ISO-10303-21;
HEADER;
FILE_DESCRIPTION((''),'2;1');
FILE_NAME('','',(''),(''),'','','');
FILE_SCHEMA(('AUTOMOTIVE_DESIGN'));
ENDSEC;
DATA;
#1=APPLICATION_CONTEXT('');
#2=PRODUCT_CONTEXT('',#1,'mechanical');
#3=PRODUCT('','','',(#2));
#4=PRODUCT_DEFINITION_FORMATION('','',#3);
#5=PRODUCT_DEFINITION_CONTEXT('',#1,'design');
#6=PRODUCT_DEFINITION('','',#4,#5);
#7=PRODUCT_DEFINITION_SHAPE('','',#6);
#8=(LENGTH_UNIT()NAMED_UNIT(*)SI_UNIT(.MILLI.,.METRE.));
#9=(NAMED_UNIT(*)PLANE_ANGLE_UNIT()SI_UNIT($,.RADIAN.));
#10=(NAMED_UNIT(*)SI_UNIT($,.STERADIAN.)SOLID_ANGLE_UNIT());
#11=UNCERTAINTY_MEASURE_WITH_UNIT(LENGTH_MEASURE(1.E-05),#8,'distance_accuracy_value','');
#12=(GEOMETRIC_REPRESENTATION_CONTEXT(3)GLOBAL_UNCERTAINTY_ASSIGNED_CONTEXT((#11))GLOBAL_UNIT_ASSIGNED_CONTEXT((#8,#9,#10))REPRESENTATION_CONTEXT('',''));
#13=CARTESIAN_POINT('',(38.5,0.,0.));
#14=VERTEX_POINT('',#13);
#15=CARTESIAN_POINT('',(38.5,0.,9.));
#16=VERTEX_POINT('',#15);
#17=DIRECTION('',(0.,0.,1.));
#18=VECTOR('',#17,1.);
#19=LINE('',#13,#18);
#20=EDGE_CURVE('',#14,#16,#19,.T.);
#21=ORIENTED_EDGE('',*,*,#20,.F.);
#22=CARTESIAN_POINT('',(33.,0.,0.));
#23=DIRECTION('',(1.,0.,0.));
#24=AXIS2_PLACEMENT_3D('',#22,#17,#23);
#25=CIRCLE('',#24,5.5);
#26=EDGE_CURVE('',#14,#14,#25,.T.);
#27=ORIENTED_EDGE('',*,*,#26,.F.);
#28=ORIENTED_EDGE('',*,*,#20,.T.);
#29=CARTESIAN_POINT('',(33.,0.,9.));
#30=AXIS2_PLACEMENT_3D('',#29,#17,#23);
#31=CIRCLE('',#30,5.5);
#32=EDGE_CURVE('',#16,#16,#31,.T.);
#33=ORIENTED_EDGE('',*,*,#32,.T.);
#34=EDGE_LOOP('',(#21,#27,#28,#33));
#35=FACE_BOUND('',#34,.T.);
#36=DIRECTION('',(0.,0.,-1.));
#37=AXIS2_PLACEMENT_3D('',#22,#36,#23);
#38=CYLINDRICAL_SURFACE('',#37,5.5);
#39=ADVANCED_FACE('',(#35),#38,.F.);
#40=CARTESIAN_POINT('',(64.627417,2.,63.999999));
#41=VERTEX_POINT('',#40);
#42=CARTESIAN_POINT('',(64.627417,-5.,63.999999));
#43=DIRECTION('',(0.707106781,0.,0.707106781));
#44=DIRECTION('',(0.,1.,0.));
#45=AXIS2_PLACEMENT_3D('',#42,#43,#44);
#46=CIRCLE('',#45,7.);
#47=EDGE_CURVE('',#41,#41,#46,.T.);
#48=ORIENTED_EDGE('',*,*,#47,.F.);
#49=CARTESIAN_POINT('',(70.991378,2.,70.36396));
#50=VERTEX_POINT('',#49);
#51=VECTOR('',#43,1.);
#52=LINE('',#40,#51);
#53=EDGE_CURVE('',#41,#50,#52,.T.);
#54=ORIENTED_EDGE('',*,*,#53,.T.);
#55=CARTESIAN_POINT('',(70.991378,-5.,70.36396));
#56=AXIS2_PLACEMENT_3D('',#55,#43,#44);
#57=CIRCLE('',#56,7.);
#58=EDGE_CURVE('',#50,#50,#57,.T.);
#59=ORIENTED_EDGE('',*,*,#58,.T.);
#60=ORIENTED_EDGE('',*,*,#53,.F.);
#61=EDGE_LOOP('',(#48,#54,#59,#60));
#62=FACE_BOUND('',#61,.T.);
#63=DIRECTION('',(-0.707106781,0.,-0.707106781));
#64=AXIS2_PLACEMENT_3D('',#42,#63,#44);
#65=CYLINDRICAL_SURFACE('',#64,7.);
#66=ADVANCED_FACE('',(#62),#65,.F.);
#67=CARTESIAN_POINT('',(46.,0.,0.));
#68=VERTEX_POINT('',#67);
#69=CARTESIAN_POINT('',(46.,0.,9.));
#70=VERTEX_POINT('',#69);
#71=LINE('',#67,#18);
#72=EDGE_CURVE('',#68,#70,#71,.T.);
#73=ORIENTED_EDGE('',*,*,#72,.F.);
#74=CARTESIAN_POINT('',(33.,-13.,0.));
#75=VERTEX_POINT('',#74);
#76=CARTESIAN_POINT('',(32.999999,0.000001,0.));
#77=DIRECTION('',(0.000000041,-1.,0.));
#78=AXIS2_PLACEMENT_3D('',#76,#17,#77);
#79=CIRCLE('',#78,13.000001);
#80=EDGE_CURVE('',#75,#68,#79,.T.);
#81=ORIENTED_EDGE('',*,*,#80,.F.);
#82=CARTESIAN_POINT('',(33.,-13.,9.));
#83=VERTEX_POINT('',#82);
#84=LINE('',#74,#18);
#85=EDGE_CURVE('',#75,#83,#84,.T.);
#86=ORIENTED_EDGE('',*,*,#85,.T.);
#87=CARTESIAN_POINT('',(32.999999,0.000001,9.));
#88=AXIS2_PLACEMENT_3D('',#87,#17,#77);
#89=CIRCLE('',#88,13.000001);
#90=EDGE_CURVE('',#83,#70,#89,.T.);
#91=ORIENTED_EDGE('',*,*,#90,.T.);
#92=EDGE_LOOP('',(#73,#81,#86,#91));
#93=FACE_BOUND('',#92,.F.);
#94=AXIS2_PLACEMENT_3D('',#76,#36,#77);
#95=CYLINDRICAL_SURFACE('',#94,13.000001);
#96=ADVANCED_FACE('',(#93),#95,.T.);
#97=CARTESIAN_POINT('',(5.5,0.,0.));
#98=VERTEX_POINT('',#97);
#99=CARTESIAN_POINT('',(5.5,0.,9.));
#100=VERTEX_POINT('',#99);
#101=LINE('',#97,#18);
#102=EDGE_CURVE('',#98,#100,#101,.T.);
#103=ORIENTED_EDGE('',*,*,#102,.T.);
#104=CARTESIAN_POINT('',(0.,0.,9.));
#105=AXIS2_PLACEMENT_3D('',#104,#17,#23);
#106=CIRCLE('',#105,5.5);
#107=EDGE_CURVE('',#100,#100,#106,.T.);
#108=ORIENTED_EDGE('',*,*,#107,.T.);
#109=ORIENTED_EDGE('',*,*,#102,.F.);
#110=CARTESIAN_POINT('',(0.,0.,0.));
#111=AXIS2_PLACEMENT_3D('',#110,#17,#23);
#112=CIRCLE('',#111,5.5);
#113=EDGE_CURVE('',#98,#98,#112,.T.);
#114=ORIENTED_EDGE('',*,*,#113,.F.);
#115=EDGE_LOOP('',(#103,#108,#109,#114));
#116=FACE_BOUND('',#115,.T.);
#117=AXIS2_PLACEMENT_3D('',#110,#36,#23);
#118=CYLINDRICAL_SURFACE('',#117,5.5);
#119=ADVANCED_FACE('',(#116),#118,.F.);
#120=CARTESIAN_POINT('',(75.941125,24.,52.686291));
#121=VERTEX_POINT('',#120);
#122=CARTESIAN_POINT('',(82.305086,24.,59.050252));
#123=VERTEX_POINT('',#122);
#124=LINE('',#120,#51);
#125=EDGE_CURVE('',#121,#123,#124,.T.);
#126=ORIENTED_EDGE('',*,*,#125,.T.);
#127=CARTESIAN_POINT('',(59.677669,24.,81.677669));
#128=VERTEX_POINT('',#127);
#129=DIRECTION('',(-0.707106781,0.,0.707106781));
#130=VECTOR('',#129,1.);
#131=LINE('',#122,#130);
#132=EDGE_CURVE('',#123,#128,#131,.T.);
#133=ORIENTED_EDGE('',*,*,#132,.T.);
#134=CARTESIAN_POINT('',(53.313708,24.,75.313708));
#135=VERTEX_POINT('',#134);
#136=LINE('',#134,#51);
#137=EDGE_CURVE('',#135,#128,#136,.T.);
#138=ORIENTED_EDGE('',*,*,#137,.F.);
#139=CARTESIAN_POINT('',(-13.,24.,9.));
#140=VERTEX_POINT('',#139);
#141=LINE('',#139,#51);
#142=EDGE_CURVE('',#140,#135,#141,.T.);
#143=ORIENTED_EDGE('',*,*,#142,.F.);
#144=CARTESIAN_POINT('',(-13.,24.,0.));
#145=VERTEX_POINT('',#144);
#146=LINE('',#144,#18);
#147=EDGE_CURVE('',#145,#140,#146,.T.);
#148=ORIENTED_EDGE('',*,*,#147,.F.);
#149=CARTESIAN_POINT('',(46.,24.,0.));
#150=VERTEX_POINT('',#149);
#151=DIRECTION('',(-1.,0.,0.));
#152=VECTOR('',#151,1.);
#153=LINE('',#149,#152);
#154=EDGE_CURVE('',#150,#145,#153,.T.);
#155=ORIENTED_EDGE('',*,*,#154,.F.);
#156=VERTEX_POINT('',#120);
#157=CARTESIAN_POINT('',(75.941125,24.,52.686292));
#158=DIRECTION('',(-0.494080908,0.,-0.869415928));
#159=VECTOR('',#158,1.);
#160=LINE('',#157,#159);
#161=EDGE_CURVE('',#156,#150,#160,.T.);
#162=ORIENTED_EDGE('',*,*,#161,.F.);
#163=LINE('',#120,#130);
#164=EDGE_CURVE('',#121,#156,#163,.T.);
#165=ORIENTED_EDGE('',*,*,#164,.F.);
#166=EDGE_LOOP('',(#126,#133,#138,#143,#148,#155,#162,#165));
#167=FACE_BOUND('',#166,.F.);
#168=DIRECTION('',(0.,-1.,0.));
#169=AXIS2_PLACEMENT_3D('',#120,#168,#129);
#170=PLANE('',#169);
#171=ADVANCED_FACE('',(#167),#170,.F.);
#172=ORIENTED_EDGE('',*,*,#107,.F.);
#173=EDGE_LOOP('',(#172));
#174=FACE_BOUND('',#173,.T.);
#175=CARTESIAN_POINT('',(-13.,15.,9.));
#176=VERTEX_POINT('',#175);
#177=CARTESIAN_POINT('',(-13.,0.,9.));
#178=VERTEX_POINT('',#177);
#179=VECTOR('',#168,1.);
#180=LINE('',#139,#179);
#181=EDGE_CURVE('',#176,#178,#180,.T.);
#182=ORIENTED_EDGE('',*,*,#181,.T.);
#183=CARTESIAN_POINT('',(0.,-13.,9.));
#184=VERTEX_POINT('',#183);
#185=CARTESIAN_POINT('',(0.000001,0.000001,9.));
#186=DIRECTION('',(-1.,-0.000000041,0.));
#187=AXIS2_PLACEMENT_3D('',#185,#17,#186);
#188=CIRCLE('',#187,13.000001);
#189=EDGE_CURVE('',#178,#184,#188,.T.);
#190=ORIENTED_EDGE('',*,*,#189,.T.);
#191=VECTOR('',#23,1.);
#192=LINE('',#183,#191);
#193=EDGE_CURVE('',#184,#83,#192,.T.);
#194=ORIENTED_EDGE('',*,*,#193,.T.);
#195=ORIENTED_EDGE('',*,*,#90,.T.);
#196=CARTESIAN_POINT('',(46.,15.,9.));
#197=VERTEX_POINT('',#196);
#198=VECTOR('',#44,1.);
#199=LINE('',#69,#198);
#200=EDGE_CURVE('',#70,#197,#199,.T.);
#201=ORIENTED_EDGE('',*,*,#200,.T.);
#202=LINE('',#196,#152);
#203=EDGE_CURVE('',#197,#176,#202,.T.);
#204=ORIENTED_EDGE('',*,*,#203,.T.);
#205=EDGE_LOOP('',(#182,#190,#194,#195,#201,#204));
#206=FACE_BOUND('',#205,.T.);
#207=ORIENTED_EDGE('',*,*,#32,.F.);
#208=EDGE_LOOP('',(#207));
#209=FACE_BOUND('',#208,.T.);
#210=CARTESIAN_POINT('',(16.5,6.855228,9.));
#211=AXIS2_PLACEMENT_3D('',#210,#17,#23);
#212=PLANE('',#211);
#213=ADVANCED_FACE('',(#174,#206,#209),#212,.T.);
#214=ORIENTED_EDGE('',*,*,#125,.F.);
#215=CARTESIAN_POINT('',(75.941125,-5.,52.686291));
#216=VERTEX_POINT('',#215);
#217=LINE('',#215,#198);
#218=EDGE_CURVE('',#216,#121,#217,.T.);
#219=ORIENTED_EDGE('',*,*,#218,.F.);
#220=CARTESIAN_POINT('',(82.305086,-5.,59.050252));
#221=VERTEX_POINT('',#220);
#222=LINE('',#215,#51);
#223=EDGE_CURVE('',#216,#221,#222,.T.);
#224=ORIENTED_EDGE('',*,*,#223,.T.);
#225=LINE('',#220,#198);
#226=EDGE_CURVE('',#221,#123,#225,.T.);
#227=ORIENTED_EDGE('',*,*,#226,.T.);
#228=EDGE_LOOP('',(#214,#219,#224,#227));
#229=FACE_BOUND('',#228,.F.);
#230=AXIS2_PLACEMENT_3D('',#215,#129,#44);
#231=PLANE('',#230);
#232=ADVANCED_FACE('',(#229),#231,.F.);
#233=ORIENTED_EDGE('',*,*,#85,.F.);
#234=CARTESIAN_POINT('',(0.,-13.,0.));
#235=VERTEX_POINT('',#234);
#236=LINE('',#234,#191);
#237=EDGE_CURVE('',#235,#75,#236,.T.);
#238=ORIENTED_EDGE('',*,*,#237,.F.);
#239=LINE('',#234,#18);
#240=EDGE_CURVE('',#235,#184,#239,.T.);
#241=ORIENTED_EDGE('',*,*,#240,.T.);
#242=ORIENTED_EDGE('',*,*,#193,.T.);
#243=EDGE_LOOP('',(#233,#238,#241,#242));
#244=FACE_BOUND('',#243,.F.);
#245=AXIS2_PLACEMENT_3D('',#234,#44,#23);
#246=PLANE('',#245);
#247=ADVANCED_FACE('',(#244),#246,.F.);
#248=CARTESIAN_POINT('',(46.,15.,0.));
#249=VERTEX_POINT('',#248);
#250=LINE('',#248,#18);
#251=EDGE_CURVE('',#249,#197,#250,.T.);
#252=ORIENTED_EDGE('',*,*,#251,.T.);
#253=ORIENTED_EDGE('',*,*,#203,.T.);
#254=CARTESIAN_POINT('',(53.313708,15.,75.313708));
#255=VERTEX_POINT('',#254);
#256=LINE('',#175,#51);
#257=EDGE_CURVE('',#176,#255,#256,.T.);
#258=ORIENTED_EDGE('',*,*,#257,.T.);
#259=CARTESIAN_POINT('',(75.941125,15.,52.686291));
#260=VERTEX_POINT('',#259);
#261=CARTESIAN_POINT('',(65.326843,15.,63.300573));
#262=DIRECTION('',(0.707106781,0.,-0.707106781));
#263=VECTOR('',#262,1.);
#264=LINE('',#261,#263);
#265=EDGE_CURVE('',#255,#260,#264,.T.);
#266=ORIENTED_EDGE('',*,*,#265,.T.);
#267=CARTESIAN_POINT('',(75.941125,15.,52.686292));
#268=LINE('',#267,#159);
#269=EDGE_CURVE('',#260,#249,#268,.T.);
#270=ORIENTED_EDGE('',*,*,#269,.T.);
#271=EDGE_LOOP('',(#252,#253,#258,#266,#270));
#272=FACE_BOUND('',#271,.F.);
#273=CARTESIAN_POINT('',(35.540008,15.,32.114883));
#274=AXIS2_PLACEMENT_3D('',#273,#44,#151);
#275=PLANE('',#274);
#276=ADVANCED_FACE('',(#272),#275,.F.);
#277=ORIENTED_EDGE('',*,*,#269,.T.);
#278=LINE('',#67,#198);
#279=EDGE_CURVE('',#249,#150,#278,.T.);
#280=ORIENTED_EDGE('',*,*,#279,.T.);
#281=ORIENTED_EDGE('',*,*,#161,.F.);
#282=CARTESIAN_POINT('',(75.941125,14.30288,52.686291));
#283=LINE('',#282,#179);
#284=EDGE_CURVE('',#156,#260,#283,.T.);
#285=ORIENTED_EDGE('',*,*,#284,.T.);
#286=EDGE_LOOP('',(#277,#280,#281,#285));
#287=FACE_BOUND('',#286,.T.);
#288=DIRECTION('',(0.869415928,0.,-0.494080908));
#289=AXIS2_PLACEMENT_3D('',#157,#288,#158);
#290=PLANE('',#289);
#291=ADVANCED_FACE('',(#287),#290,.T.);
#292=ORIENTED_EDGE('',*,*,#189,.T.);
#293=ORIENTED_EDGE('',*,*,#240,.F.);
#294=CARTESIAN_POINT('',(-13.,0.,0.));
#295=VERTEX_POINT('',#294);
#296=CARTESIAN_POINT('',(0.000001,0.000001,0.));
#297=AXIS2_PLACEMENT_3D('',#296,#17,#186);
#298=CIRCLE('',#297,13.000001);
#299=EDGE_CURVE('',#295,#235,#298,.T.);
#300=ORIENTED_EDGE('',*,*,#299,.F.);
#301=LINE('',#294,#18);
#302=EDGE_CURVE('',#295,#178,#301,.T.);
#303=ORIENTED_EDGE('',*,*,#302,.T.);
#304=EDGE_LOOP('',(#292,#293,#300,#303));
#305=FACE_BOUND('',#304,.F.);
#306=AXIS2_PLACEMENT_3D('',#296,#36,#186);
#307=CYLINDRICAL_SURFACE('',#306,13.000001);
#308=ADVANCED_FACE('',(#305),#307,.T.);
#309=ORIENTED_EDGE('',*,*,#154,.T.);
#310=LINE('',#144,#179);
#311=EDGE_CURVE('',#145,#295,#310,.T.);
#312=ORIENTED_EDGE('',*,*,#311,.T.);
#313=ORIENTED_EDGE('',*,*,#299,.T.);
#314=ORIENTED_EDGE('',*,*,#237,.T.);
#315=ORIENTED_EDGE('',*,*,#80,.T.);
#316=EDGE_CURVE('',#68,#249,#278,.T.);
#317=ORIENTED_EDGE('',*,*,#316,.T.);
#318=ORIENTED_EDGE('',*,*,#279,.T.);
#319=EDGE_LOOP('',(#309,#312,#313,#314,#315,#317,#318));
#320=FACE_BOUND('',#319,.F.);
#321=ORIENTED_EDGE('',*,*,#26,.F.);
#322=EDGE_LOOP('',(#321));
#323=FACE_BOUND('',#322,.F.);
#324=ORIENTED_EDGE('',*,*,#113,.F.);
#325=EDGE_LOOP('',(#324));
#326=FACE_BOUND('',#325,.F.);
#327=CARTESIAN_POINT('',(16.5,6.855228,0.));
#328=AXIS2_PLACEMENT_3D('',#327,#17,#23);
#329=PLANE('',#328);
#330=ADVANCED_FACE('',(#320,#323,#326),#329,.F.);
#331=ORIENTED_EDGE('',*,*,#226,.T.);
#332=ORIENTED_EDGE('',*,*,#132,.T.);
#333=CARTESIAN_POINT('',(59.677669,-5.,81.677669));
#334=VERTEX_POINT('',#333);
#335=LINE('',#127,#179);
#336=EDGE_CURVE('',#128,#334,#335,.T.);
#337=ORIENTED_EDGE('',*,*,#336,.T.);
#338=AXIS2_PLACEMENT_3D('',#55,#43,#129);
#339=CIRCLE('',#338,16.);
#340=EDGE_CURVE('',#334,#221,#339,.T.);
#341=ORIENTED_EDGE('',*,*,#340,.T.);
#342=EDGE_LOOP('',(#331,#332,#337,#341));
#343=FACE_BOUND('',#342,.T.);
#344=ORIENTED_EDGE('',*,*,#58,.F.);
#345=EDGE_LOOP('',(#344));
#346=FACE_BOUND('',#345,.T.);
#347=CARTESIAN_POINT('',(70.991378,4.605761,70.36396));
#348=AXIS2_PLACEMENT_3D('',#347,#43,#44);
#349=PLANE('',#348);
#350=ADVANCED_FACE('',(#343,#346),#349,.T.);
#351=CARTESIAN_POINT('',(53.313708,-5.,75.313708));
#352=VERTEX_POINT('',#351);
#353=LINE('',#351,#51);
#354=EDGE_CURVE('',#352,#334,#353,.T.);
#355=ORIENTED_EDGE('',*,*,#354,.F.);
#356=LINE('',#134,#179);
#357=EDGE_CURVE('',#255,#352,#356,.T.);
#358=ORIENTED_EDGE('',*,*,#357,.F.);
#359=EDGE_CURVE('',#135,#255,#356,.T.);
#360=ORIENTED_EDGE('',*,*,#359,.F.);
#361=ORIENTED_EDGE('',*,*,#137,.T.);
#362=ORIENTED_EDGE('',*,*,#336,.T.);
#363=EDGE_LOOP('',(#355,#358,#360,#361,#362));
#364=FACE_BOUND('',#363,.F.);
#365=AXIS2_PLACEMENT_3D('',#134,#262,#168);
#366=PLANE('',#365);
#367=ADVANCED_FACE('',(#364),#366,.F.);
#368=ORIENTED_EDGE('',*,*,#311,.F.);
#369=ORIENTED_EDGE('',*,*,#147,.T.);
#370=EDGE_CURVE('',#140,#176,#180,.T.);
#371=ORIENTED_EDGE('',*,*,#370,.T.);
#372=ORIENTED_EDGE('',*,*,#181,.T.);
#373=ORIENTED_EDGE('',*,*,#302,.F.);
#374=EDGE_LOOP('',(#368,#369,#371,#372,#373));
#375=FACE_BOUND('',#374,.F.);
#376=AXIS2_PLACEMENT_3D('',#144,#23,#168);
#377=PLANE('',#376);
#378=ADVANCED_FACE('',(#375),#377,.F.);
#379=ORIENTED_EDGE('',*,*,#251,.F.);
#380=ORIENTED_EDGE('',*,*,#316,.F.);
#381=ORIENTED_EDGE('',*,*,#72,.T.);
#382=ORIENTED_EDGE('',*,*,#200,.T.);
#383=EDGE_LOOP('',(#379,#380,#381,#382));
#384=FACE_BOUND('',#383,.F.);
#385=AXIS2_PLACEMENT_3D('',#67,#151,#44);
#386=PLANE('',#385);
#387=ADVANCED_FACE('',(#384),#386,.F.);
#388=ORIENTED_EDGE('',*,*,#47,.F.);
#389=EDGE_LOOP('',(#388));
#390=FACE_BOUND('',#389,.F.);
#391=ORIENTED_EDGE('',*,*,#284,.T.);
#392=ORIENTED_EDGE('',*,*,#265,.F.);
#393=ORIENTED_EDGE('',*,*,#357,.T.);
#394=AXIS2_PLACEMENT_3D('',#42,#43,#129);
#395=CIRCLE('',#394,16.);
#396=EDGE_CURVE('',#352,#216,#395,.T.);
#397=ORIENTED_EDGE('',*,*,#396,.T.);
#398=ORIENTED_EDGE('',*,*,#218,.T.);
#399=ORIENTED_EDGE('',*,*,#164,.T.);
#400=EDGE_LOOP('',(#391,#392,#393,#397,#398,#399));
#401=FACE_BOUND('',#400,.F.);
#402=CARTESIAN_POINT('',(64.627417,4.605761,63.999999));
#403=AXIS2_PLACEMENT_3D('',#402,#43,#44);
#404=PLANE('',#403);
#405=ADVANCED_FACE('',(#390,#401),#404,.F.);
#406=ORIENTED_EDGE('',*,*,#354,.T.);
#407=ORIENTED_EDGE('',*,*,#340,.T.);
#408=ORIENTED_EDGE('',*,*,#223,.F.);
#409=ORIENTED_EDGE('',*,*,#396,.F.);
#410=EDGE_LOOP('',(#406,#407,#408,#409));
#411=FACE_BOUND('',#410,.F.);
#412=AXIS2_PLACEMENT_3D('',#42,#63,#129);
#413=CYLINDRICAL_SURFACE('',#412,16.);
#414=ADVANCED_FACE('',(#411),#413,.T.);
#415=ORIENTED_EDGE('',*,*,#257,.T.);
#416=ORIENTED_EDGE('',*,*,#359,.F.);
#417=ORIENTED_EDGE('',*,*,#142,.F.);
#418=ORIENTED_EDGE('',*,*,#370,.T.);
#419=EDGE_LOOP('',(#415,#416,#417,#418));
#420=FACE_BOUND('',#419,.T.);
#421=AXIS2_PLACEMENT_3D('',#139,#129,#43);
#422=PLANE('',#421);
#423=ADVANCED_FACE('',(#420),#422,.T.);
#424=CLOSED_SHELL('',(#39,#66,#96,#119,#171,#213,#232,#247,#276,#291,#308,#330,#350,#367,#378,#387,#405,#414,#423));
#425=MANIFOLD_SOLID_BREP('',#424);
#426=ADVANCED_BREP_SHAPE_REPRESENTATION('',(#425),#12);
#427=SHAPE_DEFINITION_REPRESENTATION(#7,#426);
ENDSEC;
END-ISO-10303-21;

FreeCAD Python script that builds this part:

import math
import FreeCAD as App
import Part
import Sketcher

V = App.Vector
Q = App.Units.Quantity


def add_polygon(sketch, points):
    """Adds a closed chain of lines whose ends are joined by coincident constraints."""
    first, n = sketch.GeometryCount, len(points)
    for a, b in zip(points, points[1:] + points[:1]):
        sketch.addGeometry(Part.LineSegment(App.Vector(*a, 0), App.Vector(*b, 0)), False)
    for i in range(n):
        sketch.addConstraint(Sketcher.Constraint("Coincident", first + i, 2, first + (i + 1) % n, 1))

doc = App.newDocument("Part")
body = doc.addObject("PartDesign::Body", "Body")

sketch1 = doc.addObject("Sketcher::SketchObject", "Sketch")
body.addObject(sketch1)
sketch1.AttachmentSupport = (doc.XY_Plane, [""])
sketch1.MapMode = "FlatFace"
sketch1.addGeometry(Part.LineSegment(V(46, 24, 0), V(-13, 24, 0)), False)
sketch1.addGeometry(Part.LineSegment(V(-13, 24, 0), V(-13, 0, 0)), False)
sketch1.addGeometry(Part.ArcOfCircle(Part.Circle(V(0.000001, 0.000001, 0), V(0, 0, 1), 13.000001), math.radians(-179.999998), math.radians(-90.000002)), False)
sketch1.addGeometry(Part.LineSegment(V(0, -13, 0), V(33, -13, 0)), False)
sketch1.addGeometry(Part.ArcOfCircle(Part.Circle(V(32.999999, 0.000001, 0), V(0, 0, 1), 13.000001), math.radians(-89.999998), math.radians(-0.000002)), False)
sketch1.addGeometry(Part.LineSegment(V(46, 0, 0), V(46, 24, 0)), False)
sketch1.addGeometry(Part.Circle(V(0, 0, 0), V(0, 0, 1), 5.5), False)
sketch1.addGeometry(Part.Circle(V(33, 0, 0), V(0, 0, 1), 5.5), False)
sketch1.addConstraint(Sketcher.Constraint("Coincident", 0, 2, 1, 1))
sketch1.addConstraint(Sketcher.Constraint("Tangent", 1, 2, 2, 1))
sketch1.addConstraint(Sketcher.Constraint("Tangent", 2, 2, 3, 1))
sketch1.addConstraint(Sketcher.Constraint("Tangent", 3, 2, 4, 1))
sketch1.addConstraint(Sketcher.Constraint("Tangent", 4, 2, 5, 1))
sketch1.addConstraint(Sketcher.Constraint("Coincident", 5, 2, 0, 1))
sketch1.addConstraint(Sketcher.Constraint("Horizontal", 0))
sketch1.addConstraint(Sketcher.Constraint("Vertical", 1))
sketch1.addConstraint(Sketcher.Constraint("Horizontal", 3))
sketch1.addConstraint(Sketcher.Constraint("Vertical", 5))
sketch1.addConstraint(Sketcher.Constraint("Coincident", 2, 3, -1, 1))
sketch1.addConstraint(Sketcher.Constraint("Coincident", 6, 3, -1, 1))
sketch1.addConstraint(Sketcher.Constraint("Coincident", 7, 3, 4, 3))
sketch1.addConstraint(Sketcher.Constraint("Equal", 2, 4))
sketch1.addConstraint(Sketcher.Constraint("Equal", 6, 7))
sketch1.addConstraint(Sketcher.Constraint("Diameter", 6, Q("11 mm")))
sketch1.addConstraint(Sketcher.Constraint("Radius", 2, Q("13.000001 mm")))
sketch1.addConstraint(Sketcher.Constraint("DistanceX", 0, 2, 0, 1, Q("59 mm")))
sketch1.addConstraint(Sketcher.Constraint("DistanceY", 1, 2, 1, 1, Q("24 mm")))
pad1 = doc.addObject("PartDesign::Pad", "Pad")
body.addObject(pad1)
pad1.Profile = sketch1
pad1.Length = 9

sketch2 = doc.addObject("Sketcher::SketchObject", "Sketch001")
body.addObject(sketch2)
sketch2.AttachmentSupport = (doc.XZ_Plane, [""])
sketch2.MapMode = "FlatFace"
sketch2.AttachmentOffset = App.Placement(V(0, 0, -24), App.Rotation())
add_polygon(sketch2, [(46, 9), (-13, 9), (53.313708, 75.313708), (75.941125, 52.686292), (46, 0)])
sketch2.addConstraint(Sketcher.Constraint("Horizontal", 0))
sketch2.addConstraint(Sketcher.Constraint("Vertical", 4))
sketch2.addConstraint(Sketcher.Constraint("PointOnObject", 3, 2, -1))
sketch2.addConstraint(Sketcher.Constraint("Perpendicular", 1, 2))
sketch2.addConstraint(Sketcher.Constraint("DistanceX", 0, 2, 0, 1, Q("59 mm")))
sketch2.addConstraint(Sketcher.Constraint("DistanceY", 4, 1, 4, 2, Q("9 mm")))
sketch2.addConstraint(Sketcher.Constraint("Angle", 1, Q("45 deg")))
sketch2.addConstraint(Sketcher.Constraint("Distance", 2, Q("31.999999 mm")))
sketch2.addConstraint(Sketcher.Constraint("DistanceX", 0, 2, -1, 1, Q("13 mm")))
sketch2.addConstraint(Sketcher.Constraint("Distance", 3, Q("60.59964 mm")))
pad2 = doc.addObject("PartDesign::Pad", "Pad001")
body.addObject(pad2)
pad2.Profile = sketch2
pad2.Length = 9

sketch3 = doc.addObject("Sketcher::SketchObject", "Sketch002")
body.addObject(sketch3)
sketch3.Placement = App.Placement(V(64.313708, 0, 64.313708), App.Rotation(V(0, 1, 0), V(-0.707106781, 0, 0.707106781), V(0.707106781, 0, 0.707106781), "ZXY"))
sketch3.addGeometry(Part.LineSegment(V(24, -16.443651, 0), V(24, 15.556349, 0)), False)
sketch3.addGeometry(Part.LineSegment(V(24, 15.556349, 0), V(-5, 15.556349, 0)), False)
sketch3.addGeometry(Part.ArcOfCircle(Part.Circle(V(-5, -0.443651, 0), V(0, 0, 1), 16), math.radians(90), math.radians(270)), False)
sketch3.addGeometry(Part.LineSegment(V(-5, -16.443651, 0), V(24, -16.443651, 0)), False)
sketch3.addGeometry(Part.Circle(V(-5, -0.443651, 0), V(0, 0, 1), 7), False)
sketch3.addConstraint(Sketcher.Constraint("Coincident", 0, 2, 1, 1))
sketch3.addConstraint(Sketcher.Constraint("Tangent", 1, 2, 2, 1))
sketch3.addConstraint(Sketcher.Constraint("Tangent", 2, 2, 3, 1))
sketch3.addConstraint(Sketcher.Constraint("Coincident", 3, 2, 0, 1))
sketch3.addConstraint(Sketcher.Constraint("Vertical", 0))
sketch3.addConstraint(Sketcher.Constraint("Horizontal", 1))
sketch3.addConstraint(Sketcher.Constraint("Horizontal", 3))
sketch3.addConstraint(Sketcher.Constraint("Coincident", 4, 3, 2, 3))
sketch3.addConstraint(Sketcher.Constraint("Diameter", 4, Q("14 mm")))
sketch3.addConstraint(Sketcher.Constraint("Radius", 2, Q("16 mm")))
sketch3.addConstraint(Sketcher.Constraint("DistanceX", 1, 2, 1, 1, Q("29 mm")))
sketch3.addConstraint(Sketcher.Constraint("DistanceX", 2, 3, -1, 1, Q("5 mm")))
sketch3.addConstraint(Sketcher.Constraint("DistanceY", 2, 3, -1, 1, Q("0.443651 mm")))
pad3 = doc.addObject("PartDesign::Pad", "Pad002")
body.addObject(pad3)
pad3.Profile = sketch3
pad3.Length = 9

doc.recompute()
